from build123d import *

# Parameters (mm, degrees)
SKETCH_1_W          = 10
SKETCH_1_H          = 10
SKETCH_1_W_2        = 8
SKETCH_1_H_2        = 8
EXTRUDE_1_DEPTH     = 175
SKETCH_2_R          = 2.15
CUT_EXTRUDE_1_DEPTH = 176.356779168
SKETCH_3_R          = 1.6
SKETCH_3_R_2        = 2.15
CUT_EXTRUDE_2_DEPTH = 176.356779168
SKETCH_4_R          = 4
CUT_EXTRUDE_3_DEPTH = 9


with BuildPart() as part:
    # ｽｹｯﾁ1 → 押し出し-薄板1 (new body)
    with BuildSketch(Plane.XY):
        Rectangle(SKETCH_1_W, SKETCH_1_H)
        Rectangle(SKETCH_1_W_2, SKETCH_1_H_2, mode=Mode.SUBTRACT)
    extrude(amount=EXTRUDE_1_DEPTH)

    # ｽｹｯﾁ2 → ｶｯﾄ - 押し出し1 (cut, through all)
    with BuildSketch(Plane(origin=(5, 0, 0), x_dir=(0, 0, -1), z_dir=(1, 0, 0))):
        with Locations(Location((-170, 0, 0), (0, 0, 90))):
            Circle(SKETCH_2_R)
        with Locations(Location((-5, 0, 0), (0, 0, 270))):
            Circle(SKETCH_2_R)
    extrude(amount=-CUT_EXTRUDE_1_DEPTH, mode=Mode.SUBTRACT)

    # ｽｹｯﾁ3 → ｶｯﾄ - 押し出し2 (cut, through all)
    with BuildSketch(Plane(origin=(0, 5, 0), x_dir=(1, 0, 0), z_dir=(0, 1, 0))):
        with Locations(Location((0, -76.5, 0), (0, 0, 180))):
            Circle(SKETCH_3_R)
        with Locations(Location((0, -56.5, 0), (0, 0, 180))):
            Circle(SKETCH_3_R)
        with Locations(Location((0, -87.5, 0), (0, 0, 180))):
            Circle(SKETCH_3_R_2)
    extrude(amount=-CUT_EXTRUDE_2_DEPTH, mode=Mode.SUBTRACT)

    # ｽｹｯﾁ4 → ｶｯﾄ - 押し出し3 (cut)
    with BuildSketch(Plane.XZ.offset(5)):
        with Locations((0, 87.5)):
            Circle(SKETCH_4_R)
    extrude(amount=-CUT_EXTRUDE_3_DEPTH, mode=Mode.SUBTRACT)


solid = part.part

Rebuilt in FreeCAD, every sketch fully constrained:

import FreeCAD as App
import Part
import Sketcher


def add_polygon(sketch, points):
    """Adds a closed chain of lines whose ends are joined by coincident constraints."""
    first, n = sketch.GeometryCount, len(points)
    for a, b in zip(points, points[1:] + points[:1]):
        sketch.addGeometry(Part.LineSegment(App.Vector(*a, 0), App.Vector(*b, 0)), False)
    for i in range(n):
        sketch.addConstraint(Sketcher.Constraint("Coincident", first + i, 2, first + (i + 1) % n, 1))

doc = App.newDocument("Part")
params = doc.addObject("Spreadsheet::Sheet", "Params")
for row, (alias, value) in enumerate([
    ("sketch1_width", "10 mm"),
    ("sketch1_width2", "8 mm"),
    ("pad1_length", "175 mm"),
    ("sketch2_diameter", "4.3 mm"),
    ("sketch3_diameter", "3.2 mm"),
    ("sketch3_diameter2", "4.3 mm"),
    ("sketch4_diameter", "8 mm"),
    ("pocket3_length", "9 mm"),
], start=1):
    params.set(f"A{row}", alias)
    params.set(f"B{row}", "=" + value)
    params.setAlias(f"B{row}", alias)

body = doc.addObject("PartDesign::Body", "Body")

# Sketch on XY plane
sketch1 = body.newObject("Sketcher::SketchObject", "Sketch")
sketch1.AttachmentSupport = (doc.getObject("XY_Plane"), [""])
sketch1.MapMode = "FlatFace"
add_polygon(sketch1, [(-5, 5), (-5, -5), (5, -5), (5, 5)])  # lines 0-3
add_polygon(sketch1, [(4, -4), (-4, -4), (-4, 4), (4, 4)])  # lines 4-7
sketch1.addConstraint([
    Sketcher.Constraint("Vertical", 0),
    Sketcher.Constraint("Horizontal", 1),
    Sketcher.Constraint("Vertical", 2),
    Sketcher.Constraint("Horizontal", 3),
    Sketcher.Constraint("Horizontal", 4),
    Sketcher.Constraint("Vertical", 5),
    Sketcher.Constraint("Horizontal", 6),
    Sketcher.Constraint("Vertical", 7),
    Sketcher.Constraint("Symmetric", 0, 2, 2, 2, -1, 1),
    Sketcher.Constraint("Symmetric", 4, 2, 6, 2, -1, 1),
    Sketcher.Constraint("Equal", 3, 0),
    Sketcher.Constraint("Equal", 6, 5),
    Sketcher.Constraint("DistanceX", 1, 1, 1, 2, 10.0),
    Sketcher.Constraint("DistanceX", 4, 2, 4, 1, 8.0),
])
sketch1.setExpression("Constraints[20]", "Params.sketch1_width")
sketch1.setExpression("Constraints[21]", "Params.sketch1_width2")
pad1 = body.newObject("PartDesign::Pad", "Pad")
pad1.Profile = sketch1
pad1.setExpression("Length", "Params.pad1_length")

# Sketch on YZ plane
sketch2 = body.newObject("Sketcher::SketchObject", "Sketch001")
sketch2.AttachmentSupport = (doc.getObject("YZ_Plane"), [""])
sketch2.MapMode = "FlatFace"
sketch2.AttachmentOffset = App.Placement(App.Vector(0, 0, 5), App.Rotation())
sketch2.addGeometry([
    Part.Circle(App.Vector(0, 170, 0), App.Vector(0, 0, 1), 2.1),
    Part.Circle(App.Vector(0, 5, 0), App.Vector(0, 0, 1), 2.1),
], False)
sketch2.addConstraint([
    Sketcher.Constraint("Equal", 0, 1),
    Sketcher.Constraint("PointOnObject", 0, 3, -2),
    Sketcher.Constraint("PointOnObject", 1, 3, -2),
    Sketcher.Constraint("Diameter", 0, 4.3),
    Sketcher.Constraint("DistanceY", -1, 1, 0, 3, 170.0),
    Sketcher.Constraint("DistanceY", -1, 1, 1, 3, 5.0),
])
sketch2.setExpression("Constraints[3]", "Params.sketch2_diameter")
pocket1 = body.newObject("PartDesign::Pocket", "Pocket")
pocket1.Profile = sketch2
pocket1.Type = "ThroughAll"

# Sketch on XZ plane
sketch3 = body.newObject("Sketcher::SketchObject", "Sketch002")
sketch3.AttachmentSupport = (doc.getObject("XZ_Plane"), [""])
sketch3.MapMode = "FlatFace"
sketch3.AttachmentOffset = App.Placement(App.Vector(0, 0, -5), App.Rotation())
sketch3.addGeometry([
    Part.Circle(App.Vector(0, 76.5, 0), App.Vector(0, 0, 1), 1.6),
    Part.Circle(App.Vector(0, 56.5, 0), App.Vector(0, 0, 1), 1.6),
    Part.Circle(App.Vector(0, 87.5, 0), App.Vector(0, 0, 1), 2.1),
], False)
sketch3.addConstraint([
    Sketcher.Constraint("Equal", 0, 1),
    Sketcher.Constraint("PointOnObject", 0, 3, -2),
    Sketcher.Constraint("PointOnObject", 1, 3, -2),
    Sketcher.Constraint("PointOnObject", 2, 3, -2),
    Sketcher.Constraint("Diameter", 0, 3.2),
    Sketcher.Constraint("Diameter", 2, 4.3),
    Sketcher.Constraint("DistanceY", 1, 3, 0, 3, 20.0),
    Sketcher.Constraint("DistanceY", 0, 3, 2, 3, 11.0),
    Sketcher.Constraint("DistanceY", -1, 1, 0, 3, 76.5),
])
sketch3.setExpression("Constraints[4]", "Params.sketch3_diameter")
sketch3.setExpression("Constraints[5]", "Params.sketch3_diameter2")
pocket2 = body.newObject("PartDesign::Pocket", "Pocket001")
pocket2.Profile = sketch3
pocket2.Type = "ThroughAll"
pocket2.Reversed = True

# Sketch on XZ plane
sketch4 = body.newObject("Sketcher::SketchObject", "Sketch003")
sketch4.AttachmentSupport = (doc.getObject("XZ_Plane"), [""])
sketch4.MapMode = "FlatFace"
sketch4.AttachmentOffset = App.Placement(App.Vector(0, 0, 5), App.Rotation())
sketch4.addGeometry(Part.Circle(App.Vector(0, 87.5, 0), App.Vector(0, 0, 1), 4), False)
sketch4.addConstraint([
    Sketcher.Constraint("PointOnObject", 0, 3, -2),
    Sketcher.Constraint("Diameter", 0, 8.0),
    Sketcher.Constraint("DistanceY", -1, 1, 0, 3, 87.5),
])
sketch4.setExpression("Constraints[1]", "Params.sketch4_diameter")
pocket3 = body.newObject("PartDesign::Pocket", "Pocket002")
pocket3.Profile = sketch4
pocket3.setExpression("Length", "Params.pocket3_length")

doc.recompute()
